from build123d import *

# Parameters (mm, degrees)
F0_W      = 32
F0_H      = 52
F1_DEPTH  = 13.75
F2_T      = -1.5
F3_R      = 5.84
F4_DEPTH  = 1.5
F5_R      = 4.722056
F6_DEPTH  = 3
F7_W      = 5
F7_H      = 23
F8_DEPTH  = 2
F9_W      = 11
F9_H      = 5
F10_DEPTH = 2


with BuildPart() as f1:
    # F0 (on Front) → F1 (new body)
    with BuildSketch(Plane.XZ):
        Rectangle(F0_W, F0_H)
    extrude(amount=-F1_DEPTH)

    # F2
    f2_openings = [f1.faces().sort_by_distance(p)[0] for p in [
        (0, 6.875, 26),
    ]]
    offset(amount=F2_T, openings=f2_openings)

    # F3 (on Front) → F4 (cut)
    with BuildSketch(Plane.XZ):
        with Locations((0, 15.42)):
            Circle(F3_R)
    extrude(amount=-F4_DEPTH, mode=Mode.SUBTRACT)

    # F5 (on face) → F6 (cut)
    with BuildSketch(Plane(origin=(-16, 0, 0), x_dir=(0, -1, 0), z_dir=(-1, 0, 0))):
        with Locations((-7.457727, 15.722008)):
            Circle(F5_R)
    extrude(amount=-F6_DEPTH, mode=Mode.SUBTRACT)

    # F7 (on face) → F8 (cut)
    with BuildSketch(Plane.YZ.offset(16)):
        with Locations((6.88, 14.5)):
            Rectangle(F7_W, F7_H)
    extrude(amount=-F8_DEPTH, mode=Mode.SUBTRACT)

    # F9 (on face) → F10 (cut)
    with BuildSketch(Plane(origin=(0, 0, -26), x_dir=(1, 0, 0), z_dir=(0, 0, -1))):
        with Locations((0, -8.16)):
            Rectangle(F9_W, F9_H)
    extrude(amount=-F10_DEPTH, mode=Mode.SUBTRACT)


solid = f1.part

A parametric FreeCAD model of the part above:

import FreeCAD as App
import Part
import Sketcher

V = App.Vector


def faces_at(feature, points):
    """Names of the faces that lie closest to the given points."""
    faces = feature.Shape.Faces
    near = lambda p: min(range(len(faces)), key=lambda i: faces[i].distToShape(Part.Vertex(*p))[0])
    return sorted({f"Face{near(p) + 1}" for p in points})


def add_polygon(sketch, points):
    """Adds a closed chain of lines whose ends are joined by coincident constraints."""
    first, n = sketch.GeometryCount, len(points)
    for a, b in zip(points, points[1:] + points[:1]):
        sketch.addGeometry(Part.LineSegment(App.Vector(*a, 0), App.Vector(*b, 0)), False)
    for i in range(n):
        sketch.addConstraint(Sketcher.Constraint("Coincident", first + i, 2, first + (i + 1) % n, 1))

doc = App.newDocument("Part")
body = doc.addObject("PartDesign::Body", "Body")

sketch1 = body.newObject("Sketcher::SketchObject", "Sketch")
sketch1.AttachmentSupport = (doc.getObject("XZ_Plane"), [""])
sketch1.MapMode = "FlatFace"
add_polygon(sketch1, [(-16, 26), (-16, -26), (16, -26), (16, 26)])
sketch1.addConstraint([
    Sketcher.Constraint("Vertical", 0),
    Sketcher.Constraint("Horizontal", 1),
    Sketcher.Constraint("Vertical", 2),
    Sketcher.Constraint("Horizontal", 3),
    Sketcher.Constraint("Symmetric", 0, 2, 2, 2, -1, 1),
    Sketcher.Constraint("DistanceX", 1, 1, 1, 2, 32.0),
    Sketcher.Constraint("DistanceY", 0, 2, 0, 1, 52.0),
])
pad1 = body.newObject("PartDesign::Pad", "Pad")
pad1.Profile = sketch1
pad1.Length = 13.75
pad1.Reversed = True
doc.recompute()

thickness = body.newObject("PartDesign::Thickness", "Thickness")
thickness.Base = (pad1, faces_at(pad1, [(0, 6.875, 26)]))
thickness.Value = 1.5
thickness.Reversed = True
thickness.Join = "Arc"

sketch2 = body.newObject("Sketcher::SketchObject", "Sketch001")
sketch2.AttachmentSupport = (doc.getObject("XZ_Plane"), [""])
sketch2.MapMode = "FlatFace"
sketch2.addGeometry(Part.Circle(V(0, 15, 0), V(0, 0, 1), 6), False)
sketch2.addConstraint([
    Sketcher.Constraint("PointOnObject", 0, 3, -2),
    Sketcher.Constraint("Diameter", 0, 11.68),
    Sketcher.Constraint("DistanceY", -1, 1, 0, 3, 15.42),
])
pocket1 = body.newObject("PartDesign::Pocket", "Pocket")
pocket1.Profile = sketch2
pocket1.Length = 1.5

sketch3 = body.newObject("Sketcher::SketchObject", "Sketch002")
sketch3.AttachmentSupport = (doc.getObject("YZ_Plane"), [""])
sketch3.MapMode = "FlatFace"
sketch3.AttachmentOffset = App.Placement(V(0, 0, -16), App.Rotation())
sketch3.addGeometry(Part.Circle(V(7.5, 15.7, 0), V(0, 0, 1), 4.7), False)
sketch3.addConstraint([
    Sketcher.Constraint("Diameter", 0, 9.444112),
    Sketcher.Constraint("DistanceY", -1, 1, 0, 3, 15.722008),
    Sketcher.Constraint("DistanceX", -1, 1, 0, 3, 7.457727),
])
pocket2 = body.newObject("PartDesign::Pocket", "Pocket001")
pocket2.Profile = sketch3
pocket2.Length = 3
pocket2.Reversed = True

sketch4 = body.newObject("Sketcher::SketchObject", "Sketch003")
sketch4.AttachmentSupport = (doc.getObject("YZ_Plane"), [""])
sketch4.MapMode = "FlatFace"
sketch4.AttachmentOffset = App.Placement(V(0, 0, 16), App.Rotation())
add_polygon(sketch4, [(4, 26), (4, 3), (9, 3), (9, 26)])
sketch4.addConstraint([
    Sketcher.Constraint("Vertical", 0),
    Sketcher.Constraint("Horizontal", 1),
    Sketcher.Constraint("Vertical", 2),
    Sketcher.Constraint("Horizontal", 3),
    Sketcher.Constraint("DistanceX", 1, 1, 1, 2, 5.0),
    Sketcher.Constraint("DistanceY", 0, 2, 0, 1, 23.0),
    Sketcher.Constraint("DistanceY", -1, 1, 0, 2, 3.0),
    Sketcher.Constraint("DistanceX", -1, 1, 0, 2, 4.38),
])
pocket3 = body.newObject("PartDesign::Pocket", "Pocket002")
pocket3.Profile = sketch4
pocket3.Length = 2

sketch5 = body.newObject("Sketcher::SketchObject", "Sketch004")
sketch5.AttachmentSupport = (doc.getObject("XY_Plane"), [""])
sketch5.MapMode = "FlatFace"
sketch5.AttachmentOffset = App.Placement(V(0, 0, -26), App.Rotation())
add_polygon(sketch5, [(-6, 6), (-6, 11), (6, 11), (6, 6)])
sketch5.addConstraint([
    Sketcher.Constraint("Vertical", 0),
    Sketcher.Constraint("Horizontal", 1),
    Sketcher.Constraint("Vertical", 2),
    Sketcher.Constraint("Horizontal", 3),
    Sketcher.Constraint("DistanceX", 1, 1, 1, 2, 11.0),
    Sketcher.Constraint("DistanceY", 0, 1, 0, 2, 5.0),
    Sketcher.Constraint("DistanceX", 0, 2, -1, 1, 5.5),
    Sketcher.Constraint("DistanceY", -1, 1, 0, 2, 10.66),
])
pocket4 = body.newObject("PartDesign::Pocket", "Pocket003")
pocket4.Profile = sketch5
pocket4.Length = 2
pocket4.Reversed = True

doc.recompute()
